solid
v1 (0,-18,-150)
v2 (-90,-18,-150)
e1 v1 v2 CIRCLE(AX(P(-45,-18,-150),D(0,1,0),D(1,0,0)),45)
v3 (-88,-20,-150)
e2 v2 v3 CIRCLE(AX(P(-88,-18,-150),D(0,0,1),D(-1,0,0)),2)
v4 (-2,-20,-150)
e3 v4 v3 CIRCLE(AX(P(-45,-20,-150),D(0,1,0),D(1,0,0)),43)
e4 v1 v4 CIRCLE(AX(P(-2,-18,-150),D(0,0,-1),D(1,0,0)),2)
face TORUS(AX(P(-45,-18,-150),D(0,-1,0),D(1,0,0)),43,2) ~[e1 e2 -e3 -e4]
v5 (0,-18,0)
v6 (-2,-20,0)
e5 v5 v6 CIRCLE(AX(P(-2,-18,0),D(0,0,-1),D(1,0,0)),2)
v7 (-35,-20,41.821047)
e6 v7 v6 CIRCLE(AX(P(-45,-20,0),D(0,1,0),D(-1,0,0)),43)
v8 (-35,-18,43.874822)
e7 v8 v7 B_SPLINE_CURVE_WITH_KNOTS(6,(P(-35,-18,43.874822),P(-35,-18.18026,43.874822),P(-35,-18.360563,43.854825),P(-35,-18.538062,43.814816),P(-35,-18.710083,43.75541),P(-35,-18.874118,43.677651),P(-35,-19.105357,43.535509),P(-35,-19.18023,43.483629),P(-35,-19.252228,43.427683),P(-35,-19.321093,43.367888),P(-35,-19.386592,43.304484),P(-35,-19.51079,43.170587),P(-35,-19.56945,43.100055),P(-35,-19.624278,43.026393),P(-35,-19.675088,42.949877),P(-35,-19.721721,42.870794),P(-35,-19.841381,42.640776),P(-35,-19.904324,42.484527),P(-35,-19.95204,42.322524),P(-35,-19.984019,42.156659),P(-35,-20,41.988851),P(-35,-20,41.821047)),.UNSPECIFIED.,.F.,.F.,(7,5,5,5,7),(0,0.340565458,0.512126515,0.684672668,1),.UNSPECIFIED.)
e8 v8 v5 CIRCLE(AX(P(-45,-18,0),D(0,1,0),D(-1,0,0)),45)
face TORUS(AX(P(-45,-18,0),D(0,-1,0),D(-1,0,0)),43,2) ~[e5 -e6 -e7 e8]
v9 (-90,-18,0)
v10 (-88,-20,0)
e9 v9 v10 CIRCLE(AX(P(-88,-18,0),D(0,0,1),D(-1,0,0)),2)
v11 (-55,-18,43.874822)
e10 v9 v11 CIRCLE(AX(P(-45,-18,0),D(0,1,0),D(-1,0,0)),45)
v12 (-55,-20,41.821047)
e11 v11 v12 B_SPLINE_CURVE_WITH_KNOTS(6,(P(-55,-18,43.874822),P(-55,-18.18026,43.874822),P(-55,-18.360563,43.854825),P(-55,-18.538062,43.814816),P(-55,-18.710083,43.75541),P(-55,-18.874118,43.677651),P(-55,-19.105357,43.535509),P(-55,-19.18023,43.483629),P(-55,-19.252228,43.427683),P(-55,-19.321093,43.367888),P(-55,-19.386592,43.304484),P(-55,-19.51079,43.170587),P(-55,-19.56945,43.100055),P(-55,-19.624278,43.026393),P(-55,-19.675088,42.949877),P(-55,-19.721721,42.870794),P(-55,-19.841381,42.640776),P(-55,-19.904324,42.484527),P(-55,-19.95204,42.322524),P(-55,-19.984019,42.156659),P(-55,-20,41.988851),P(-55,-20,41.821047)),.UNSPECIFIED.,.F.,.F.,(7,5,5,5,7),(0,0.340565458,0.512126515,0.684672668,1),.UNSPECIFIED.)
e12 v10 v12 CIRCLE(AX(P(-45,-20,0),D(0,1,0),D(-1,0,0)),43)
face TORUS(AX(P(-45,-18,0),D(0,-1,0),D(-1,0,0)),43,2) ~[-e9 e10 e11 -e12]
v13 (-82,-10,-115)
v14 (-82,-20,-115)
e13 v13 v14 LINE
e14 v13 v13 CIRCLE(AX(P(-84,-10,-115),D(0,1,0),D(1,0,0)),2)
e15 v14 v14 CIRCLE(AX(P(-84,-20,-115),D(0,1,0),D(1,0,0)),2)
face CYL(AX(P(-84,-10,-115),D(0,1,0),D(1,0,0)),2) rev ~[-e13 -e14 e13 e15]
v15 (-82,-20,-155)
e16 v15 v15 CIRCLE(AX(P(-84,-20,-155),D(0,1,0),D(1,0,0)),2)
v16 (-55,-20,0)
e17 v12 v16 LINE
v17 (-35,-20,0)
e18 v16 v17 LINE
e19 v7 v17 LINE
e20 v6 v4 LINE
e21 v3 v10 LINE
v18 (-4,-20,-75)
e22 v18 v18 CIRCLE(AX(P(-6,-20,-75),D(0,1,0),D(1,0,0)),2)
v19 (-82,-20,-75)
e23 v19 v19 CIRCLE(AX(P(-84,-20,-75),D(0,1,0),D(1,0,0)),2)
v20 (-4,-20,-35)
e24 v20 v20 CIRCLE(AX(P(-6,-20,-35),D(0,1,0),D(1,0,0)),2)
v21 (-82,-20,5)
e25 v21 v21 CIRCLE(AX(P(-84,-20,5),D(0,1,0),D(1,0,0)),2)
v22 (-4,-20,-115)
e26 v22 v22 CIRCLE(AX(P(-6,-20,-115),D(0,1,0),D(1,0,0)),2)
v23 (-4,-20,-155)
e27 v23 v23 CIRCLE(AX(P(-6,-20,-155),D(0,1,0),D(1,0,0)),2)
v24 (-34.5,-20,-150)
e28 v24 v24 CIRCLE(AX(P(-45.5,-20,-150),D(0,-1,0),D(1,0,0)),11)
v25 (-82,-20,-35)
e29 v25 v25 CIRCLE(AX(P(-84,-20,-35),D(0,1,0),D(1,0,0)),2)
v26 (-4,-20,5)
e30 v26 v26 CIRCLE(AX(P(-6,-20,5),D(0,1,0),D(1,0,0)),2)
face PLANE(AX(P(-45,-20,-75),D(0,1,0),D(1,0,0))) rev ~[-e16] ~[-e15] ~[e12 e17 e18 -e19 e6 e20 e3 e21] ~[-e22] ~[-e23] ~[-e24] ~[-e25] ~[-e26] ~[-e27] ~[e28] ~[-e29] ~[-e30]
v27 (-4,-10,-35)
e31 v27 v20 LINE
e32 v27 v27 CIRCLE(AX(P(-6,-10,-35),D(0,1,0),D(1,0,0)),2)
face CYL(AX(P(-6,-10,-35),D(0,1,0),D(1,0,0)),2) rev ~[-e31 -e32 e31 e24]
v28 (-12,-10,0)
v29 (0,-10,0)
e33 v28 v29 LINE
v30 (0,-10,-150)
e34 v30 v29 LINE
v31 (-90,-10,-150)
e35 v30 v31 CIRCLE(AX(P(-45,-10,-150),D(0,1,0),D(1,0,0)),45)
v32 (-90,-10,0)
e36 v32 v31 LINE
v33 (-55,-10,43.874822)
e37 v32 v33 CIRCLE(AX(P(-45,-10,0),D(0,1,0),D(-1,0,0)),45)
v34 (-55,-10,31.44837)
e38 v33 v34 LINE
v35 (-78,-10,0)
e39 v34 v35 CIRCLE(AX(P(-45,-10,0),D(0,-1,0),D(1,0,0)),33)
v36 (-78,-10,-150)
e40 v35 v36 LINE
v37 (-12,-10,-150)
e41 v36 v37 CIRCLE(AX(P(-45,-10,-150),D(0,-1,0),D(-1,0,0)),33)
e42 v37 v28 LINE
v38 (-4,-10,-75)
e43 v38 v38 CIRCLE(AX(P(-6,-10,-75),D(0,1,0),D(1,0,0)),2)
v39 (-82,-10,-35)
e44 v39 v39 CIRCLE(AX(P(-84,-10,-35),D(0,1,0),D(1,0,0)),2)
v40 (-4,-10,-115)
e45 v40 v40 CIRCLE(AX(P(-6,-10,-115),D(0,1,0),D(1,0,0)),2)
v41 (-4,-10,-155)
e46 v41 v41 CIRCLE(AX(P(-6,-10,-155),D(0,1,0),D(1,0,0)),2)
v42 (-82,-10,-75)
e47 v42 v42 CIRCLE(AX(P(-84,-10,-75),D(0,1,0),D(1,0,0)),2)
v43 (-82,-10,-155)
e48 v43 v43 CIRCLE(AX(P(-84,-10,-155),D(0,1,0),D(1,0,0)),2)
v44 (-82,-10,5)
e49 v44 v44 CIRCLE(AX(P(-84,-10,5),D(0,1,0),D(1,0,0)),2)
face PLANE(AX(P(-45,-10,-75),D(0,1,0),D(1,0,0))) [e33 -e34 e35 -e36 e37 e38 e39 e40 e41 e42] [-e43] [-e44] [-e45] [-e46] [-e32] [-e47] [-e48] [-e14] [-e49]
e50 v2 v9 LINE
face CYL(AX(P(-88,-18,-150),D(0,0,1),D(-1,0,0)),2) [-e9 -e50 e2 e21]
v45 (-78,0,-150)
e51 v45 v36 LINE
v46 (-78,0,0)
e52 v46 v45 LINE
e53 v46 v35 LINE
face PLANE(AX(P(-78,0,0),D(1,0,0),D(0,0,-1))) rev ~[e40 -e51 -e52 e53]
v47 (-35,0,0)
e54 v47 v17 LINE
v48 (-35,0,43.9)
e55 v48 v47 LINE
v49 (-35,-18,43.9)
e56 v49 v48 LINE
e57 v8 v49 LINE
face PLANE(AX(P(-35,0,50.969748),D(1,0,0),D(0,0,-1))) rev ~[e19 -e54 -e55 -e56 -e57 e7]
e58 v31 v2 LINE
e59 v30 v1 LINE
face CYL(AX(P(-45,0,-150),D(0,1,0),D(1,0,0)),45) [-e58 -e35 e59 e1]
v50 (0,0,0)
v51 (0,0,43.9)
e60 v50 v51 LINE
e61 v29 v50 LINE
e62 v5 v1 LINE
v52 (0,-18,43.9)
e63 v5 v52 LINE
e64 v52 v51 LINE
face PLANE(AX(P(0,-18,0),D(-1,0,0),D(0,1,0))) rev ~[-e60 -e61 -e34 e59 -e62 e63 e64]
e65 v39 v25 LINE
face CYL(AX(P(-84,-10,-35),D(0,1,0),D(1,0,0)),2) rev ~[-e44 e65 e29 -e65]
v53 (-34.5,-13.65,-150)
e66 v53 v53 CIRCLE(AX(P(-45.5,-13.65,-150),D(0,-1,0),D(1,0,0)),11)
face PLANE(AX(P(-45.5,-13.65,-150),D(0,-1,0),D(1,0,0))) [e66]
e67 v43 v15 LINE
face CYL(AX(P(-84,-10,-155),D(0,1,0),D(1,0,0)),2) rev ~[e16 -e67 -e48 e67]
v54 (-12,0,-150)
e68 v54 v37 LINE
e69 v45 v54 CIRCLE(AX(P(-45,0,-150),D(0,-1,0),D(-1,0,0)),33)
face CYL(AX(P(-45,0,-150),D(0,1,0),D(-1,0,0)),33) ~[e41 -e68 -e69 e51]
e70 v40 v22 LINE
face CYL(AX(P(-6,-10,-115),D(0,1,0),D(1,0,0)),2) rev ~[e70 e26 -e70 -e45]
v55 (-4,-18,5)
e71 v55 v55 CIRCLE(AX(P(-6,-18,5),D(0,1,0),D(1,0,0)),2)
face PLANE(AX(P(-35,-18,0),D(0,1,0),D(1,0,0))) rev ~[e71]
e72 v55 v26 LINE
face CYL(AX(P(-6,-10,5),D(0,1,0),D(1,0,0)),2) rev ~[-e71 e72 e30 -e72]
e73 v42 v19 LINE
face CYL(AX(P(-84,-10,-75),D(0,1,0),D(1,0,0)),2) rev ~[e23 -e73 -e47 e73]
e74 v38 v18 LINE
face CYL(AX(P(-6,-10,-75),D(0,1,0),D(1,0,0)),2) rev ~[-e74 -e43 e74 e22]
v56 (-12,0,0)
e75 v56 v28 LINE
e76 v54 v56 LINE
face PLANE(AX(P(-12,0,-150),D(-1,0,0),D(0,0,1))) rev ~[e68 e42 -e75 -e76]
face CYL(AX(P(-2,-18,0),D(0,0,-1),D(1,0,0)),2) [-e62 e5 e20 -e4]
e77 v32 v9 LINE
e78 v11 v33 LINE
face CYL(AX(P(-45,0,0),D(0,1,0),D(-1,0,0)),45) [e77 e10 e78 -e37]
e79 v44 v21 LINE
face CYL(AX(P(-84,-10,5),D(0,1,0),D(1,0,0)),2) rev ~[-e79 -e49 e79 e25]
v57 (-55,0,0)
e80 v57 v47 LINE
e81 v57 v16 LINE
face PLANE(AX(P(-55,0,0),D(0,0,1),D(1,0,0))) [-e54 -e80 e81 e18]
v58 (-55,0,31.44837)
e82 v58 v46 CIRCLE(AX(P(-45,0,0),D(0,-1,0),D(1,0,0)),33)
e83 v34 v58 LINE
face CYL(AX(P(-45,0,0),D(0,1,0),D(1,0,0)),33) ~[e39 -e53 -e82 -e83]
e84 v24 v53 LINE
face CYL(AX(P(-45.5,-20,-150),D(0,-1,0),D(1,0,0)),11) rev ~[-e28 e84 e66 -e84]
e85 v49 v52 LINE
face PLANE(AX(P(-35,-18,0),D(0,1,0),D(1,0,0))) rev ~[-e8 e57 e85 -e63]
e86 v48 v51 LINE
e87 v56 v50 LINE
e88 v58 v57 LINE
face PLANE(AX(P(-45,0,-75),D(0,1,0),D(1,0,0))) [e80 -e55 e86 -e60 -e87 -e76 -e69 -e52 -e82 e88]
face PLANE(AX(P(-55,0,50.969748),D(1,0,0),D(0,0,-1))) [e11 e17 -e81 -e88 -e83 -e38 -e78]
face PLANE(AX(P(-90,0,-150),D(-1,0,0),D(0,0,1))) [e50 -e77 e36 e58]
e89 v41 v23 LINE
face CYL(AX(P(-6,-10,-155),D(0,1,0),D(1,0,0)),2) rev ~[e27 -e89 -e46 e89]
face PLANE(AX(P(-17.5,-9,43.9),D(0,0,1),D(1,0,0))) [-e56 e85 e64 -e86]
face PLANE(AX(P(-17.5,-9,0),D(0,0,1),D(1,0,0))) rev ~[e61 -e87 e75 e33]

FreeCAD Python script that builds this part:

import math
import FreeCAD as App
import Part
import Sketcher

V = App.Vector
Q = App.Units.Quantity


def edges_at(feature, points):
    """Names of the edges that pass closest to the given points."""
    edges = feature.Shape.Edges
    near = lambda p: min(range(len(edges)), key=lambda i: edges[i].distToShape(Part.Vertex(*p))[0])
    return sorted({f"Edge{near(p) + 1}" for p in points})


def add_polygon(sketch, points):
    """Adds a closed chain of lines whose ends are joined by coincident constraints."""
    first, n = sketch.GeometryCount, len(points)
    for a, b in zip(points, points[1:] + points[:1]):
        sketch.addGeometry(Part.LineSegment(App.Vector(*a, 0), App.Vector(*b, 0)), False)
    for i in range(n):
        sketch.addConstraint(Sketcher.Constraint("Coincident", first + i, 2, first + (i + 1) % n, 1))

doc = App.newDocument("Part")
body = doc.addObject("PartDesign::Body", "Body")

# Sketch on XZ plane
sketch1 = body.newObject("Sketcher::SketchObject", "Sketch")
sketch1.AttachmentSupport = (doc.getObject("XZ_Plane"), [""])
sketch1.MapMode = "FlatFace"
sketch1.addGeometry([
    Part.LineSegment(V(0, 0, 0), V(0, -150, 0)),
    Part.ArcOfCircle(Part.Circle(V(-45, -150, 0), V(0, 0, 1), 45), math.radians(180), math.radians(360)),
    Part.LineSegment(V(-90, -150, 0), V(-90, 0, 0)),
    Part.ArcOfCircle(Part.Circle(V(-45, 0, 0), V(0, 0, 1), 45), math.radians(0), math.radians(180)),
], False)
sketch1.addConstraint([
    Sketcher.Constraint("Tangent", 0, 2, 1, 2),
    Sketcher.Constraint("Tangent", 1, 1, 2, 1),
    Sketcher.Constraint("Tangent", 2, 2, 3, 2),
    Sketcher.Constraint("Tangent", 3, 1, 0, 1),
    Sketcher.Constraint("Vertical", 0),
    Sketcher.Constraint("Vertical", 2),
    Sketcher.Constraint("Coincident", 3, 1, -1, 1),
    Sketcher.Constraint("Radius", 1, Q("45 mm")),
    Sketcher.Constraint("DistanceY", 0, 2, 0, 1, Q("150 mm")),
])
pad1 = body.newObject("PartDesign::Pad", "Pad")
pad1.Profile = sketch1
pad1.Length = 20
doc.recompute()

fillet = body.newObject("PartDesign::Fillet", "Fillet")
fillet.Base = (pad1, edges_at(pad1, [
    (-45, -20, -195),
    (-90, -20, -75),
    (-45, -20, 45),
    (-90, 0, -75),
    (-45, 0, -195),
    (0, 0, -75),
    (-45, 0, 45),
    (0, -20, -75),
]))
fillet.Radius = 2

# Sketch on XZ plane
sketch2 = body.newObject("Sketcher::SketchObject", "Sketch001")
sketch2.AttachmentSupport = (doc.getObject("XZ_Plane"), [""])
sketch2.MapMode = "FlatFace"
sketch2.AttachmentOffset = App.Placement(V(0, 0, 20), App.Rotation())
sketch2.addGeometry(Part.Circle(V(-46, -150, 0), V(0, 0, 1), 11), False)
sketch2.addConstraint([
    Sketcher.Constraint("Diameter", 0, Q("22 mm")),
    Sketcher.Constraint("DistanceY", 0, 3, -1, 1, Q("150 mm")),
    Sketcher.Constraint("DistanceX", 0, 3, -1, 1, Q("45.5 mm")),
])
pocket1 = body.newObject("PartDesign::Pocket", "Pocket")
pocket1.Profile = sketch2
pocket1.Length = 6.35

# Sketch on XZ plane
sketch3 = body.newObject("Sketcher::SketchObject", "Sketch002")
sketch3.AttachmentSupport = (doc.getObject("XZ_Plane"), [""])
sketch3.MapMode = "FlatFace"
add_polygon(sketch3, [(-117, -222), (-117, 72), (27, 72), (27, -222)])  # lines 0-3
sketch3.addGeometry(Part.ArcOfCircle(Part.Circle(V(-45, 0, 0), V(0, 0, 1), 33), math.radians(0), math.radians(180)), False)  # 4
sketch3.addGeometry(Part.LineSegment(V(-78, 0, 0), V(-78, -150, 0)), False)  # 5
sketch3.addGeometry(Part.ArcOfCircle(Part.Circle(V(-45, -150, 0), V(0, 0, 1), 33), math.radians(180), math.radians(360)), False)  # 6
sketch3.addGeometry(Part.LineSegment(V(-12, -150, 0), V(-12, 0, 0)), False)  # 7
sketch3.addConstraint([
    Sketcher.Constraint("Tangent", 4, 2, 5, 1),
    Sketcher.Constraint("Tangent", 5, 2, 6, 1),
    Sketcher.Constraint("Tangent", 6, 2, 7, 1),
    Sketcher.Constraint("Tangent", 7, 2, 4, 1),
    Sketcher.Constraint("Vertical", 0),
    Sketcher.Constraint("Horizontal", 1),
    Sketcher.Constraint("Vertical", 2),
    Sketcher.Constraint("Horizontal", 3),
    Sketcher.Constraint("Vertical", 5),
    Sketcher.Constraint("Vertical", 7),
    Sketcher.Constraint("PointOnObject", 4, 3, -1),
    Sketcher.Constraint("Radius", 4, Q("33 mm")),
    Sketcher.Constraint("DistanceY", 5, 2, 5, 1, Q("150 mm")),
    Sketcher.Constraint("DistanceX", 4, 3, -1, 1, Q("45 mm")),
    Sketcher.Constraint("DistanceX", 1, 1, 1, 2, Q("143.42 mm")),
    Sketcher.Constraint("DistanceY", 0, 1, 0, 2, Q("293.42 mm")),
    Sketcher.Constraint("DistanceX", 0, 2, -1, 1, Q("116.71 mm")),
    Sketcher.Constraint("DistanceY", -1, 1, 0, 2, Q("71.71 mm")),
])
pocket2 = body.newObject("PartDesign::Pocket", "Pocket001")
pocket2.Profile = sketch3
pocket2.Length = 10
pocket2.Reversed = True

# Sketch on XZ plane
sketch4 = body.newObject("Sketcher::SketchObject", "Sketch003")
sketch4.AttachmentSupport = (doc.getObject("XZ_Plane"), [""])
sketch4.MapMode = "FlatFace"
sketch4.AttachmentOffset = App.Placement(V(0, 0, 10), App.Rotation())
sketch4.addGeometry([
    Part.Circle(V(-6, -75, 0), V(0, 0, 1), 2),  # 0
    Part.Circle(V(-6, -115, 0), V(0, 0, 1), 2),  # 1
    Part.Circle(V(-6, -155, 0), V(0, 0, 1), 2),  # 2
    Part.Circle(V(-6, -35, 0), V(0, 0, 1), 2),  # 3
    Part.Circle(V(-6, 5, 0), V(0, 0, 1), 2),  # 4
    Part.Circle(V(-84, 5, 0), V(0, 0, 1), 2),  # 5
    Part.Circle(V(-84, -35, 0), V(0, 0, 1), 2),  # 6
    Part.Circle(V(-84, -75, 0), V(0, 0, 1), 2),  # 7
    Part.Circle(V(-84, -115, 0), V(0, 0, 1), 2),  # 8
    Part.Circle(V(-84, -155, 0), V(0, 0, 1), 2),  # 9
], False)
sketch4.addConstraint([
    Sketcher.Constraint("Equal", 0, 1),
    Sketcher.Constraint("Equal", 1, 2),
    Sketcher.Constraint("Equal", 2, 3),
    Sketcher.Constraint("Equal", 3, 4),
    Sketcher.Constraint("Equal", 4, 5),
    Sketcher.Constraint("Equal", 5, 6),
    Sketcher.Constraint("Equal", 6, 7),
    Sketcher.Constraint("Equal", 7, 8),
    Sketcher.Constraint("Equal", 8, 9),
    Sketcher.Constraint("Horizontal", 4, 3, 5, 3),
    Sketcher.Constraint("Horizontal", 3, 3, 6, 3),
    Sketcher.Constraint("Horizontal", 0, 3, 7, 3),
    Sketcher.Constraint("Horizontal", 1, 3, 8, 3),
    Sketcher.Constraint("Horizontal", 2, 3, 9, 3),
    Sketcher.Constraint("Vertical", 0, 3, 1, 3),
    Sketcher.Constraint("Vertical", 1, 3, 2, 3),
    Sketcher.Constraint("Vertical", 2, 3, 3, 3),
    Sketcher.Constraint("Vertical", 3, 3, 4, 3),
    Sketcher.Constraint("Vertical", 5, 3, 6, 3),
    Sketcher.Constraint("Vertical", 6, 3, 7, 3),
    Sketcher.Constraint("Vertical", 7, 3, 8, 3),
    Sketcher.Constraint("Vertical", 8, 3, 9, 3),
    Sketcher.Constraint("Diameter", 0, Q("4 mm")),
    Sketcher.Constraint("DistanceX", 0, 3, -1, 1, Q("6 mm")),
    Sketcher.Constraint("DistanceY", 0, 3, -1, 1, Q("75 mm")),
    Sketcher.Constraint("DistanceY", 1, 3, -1, 1, Q("115 mm")),
    Sketcher.Constraint("DistanceY", 2, 3, -1, 1, Q("155 mm")),
    Sketcher.Constraint("DistanceY", 3, 3, -1, 1, Q("35 mm")),
    Sketcher.Constraint("DistanceY", -1, 1, 4, 3, Q("5 mm")),
    Sketcher.Constraint("DistanceX", 5, 3, -1, 1, Q("84 mm")),
])
pocket3 = body.newObject("PartDesign::Pocket", "Pocket002")
pocket3.Profile = sketch4
pocket3.Type = "ThroughAll"
pocket3.Reversed = True

# Sketch on XZ plane
sketch5 = body.newObject("Sketcher::SketchObject", "Sketch004")
sketch5.AttachmentSupport = (doc.getObject("XZ_Plane"), [""])
sketch5.MapMode = "FlatFace"
add_polygon(sketch5, [(-55, 0), (-55, 51), (-35, 51), (-35, 0)])  # lines 0-3
sketch5.addConstraint([
    Sketcher.Constraint("Vertical", 0),
    Sketcher.Constraint("Horizontal", 1),
    Sketcher.Constraint("Vertical", 2),
    Sketcher.Constraint("Horizontal", 3),
    Sketcher.Constraint("PointOnObject", 2, 2, -1),
    Sketcher.Constraint("DistanceX", 1, 1, 1, 2, Q("20 mm")),
    Sketcher.Constraint("DistanceX", 0, 2, -1, 1, Q("55 mm")),
    Sketcher.Constraint("DistanceY", 0, 1, 0, 2, Q("50.969748 mm")),
])
pocket4 = body.newObject("PartDesign::Pocket", "Pocket003")
pocket4.Profile = sketch5
pocket4.Type = "ThroughAll"
pocket4.Reversed = True

# Sketch on XY plane
sketch6 = body.newObject("Sketcher::SketchObject", "Sketch005")
sketch6.AttachmentSupport = (doc.getObject("XY_Plane"), [""])
sketch6.MapMode = "FlatFace"
add_polygon(sketch6, [(-35, 0), (-35, -18), (0, -18), (0, 0)])  # lines 0-3
sketch6.addConstraint([
    Sketcher.Constraint("Vertical", 0),
    Sketcher.Constraint("Horizontal", 1),
    Sketcher.Constraint("Vertical", 2),
    Sketcher.Constraint("Horizontal", 3),
    Sketcher.Constraint("Coincident", 2, 2, -1, 1),
    Sketcher.Constraint("DistanceX", 1, 1, 1, 2, Q("35 mm")),
    Sketcher.Constraint("DistanceY", 0, 2, 0, 1, Q("18 mm")),
])
pad2 = body.newObject("PartDesign::Pad", "Pad001")
pad2.Profile = sketch6
pad2.Length = 43.9

doc.recompute()
